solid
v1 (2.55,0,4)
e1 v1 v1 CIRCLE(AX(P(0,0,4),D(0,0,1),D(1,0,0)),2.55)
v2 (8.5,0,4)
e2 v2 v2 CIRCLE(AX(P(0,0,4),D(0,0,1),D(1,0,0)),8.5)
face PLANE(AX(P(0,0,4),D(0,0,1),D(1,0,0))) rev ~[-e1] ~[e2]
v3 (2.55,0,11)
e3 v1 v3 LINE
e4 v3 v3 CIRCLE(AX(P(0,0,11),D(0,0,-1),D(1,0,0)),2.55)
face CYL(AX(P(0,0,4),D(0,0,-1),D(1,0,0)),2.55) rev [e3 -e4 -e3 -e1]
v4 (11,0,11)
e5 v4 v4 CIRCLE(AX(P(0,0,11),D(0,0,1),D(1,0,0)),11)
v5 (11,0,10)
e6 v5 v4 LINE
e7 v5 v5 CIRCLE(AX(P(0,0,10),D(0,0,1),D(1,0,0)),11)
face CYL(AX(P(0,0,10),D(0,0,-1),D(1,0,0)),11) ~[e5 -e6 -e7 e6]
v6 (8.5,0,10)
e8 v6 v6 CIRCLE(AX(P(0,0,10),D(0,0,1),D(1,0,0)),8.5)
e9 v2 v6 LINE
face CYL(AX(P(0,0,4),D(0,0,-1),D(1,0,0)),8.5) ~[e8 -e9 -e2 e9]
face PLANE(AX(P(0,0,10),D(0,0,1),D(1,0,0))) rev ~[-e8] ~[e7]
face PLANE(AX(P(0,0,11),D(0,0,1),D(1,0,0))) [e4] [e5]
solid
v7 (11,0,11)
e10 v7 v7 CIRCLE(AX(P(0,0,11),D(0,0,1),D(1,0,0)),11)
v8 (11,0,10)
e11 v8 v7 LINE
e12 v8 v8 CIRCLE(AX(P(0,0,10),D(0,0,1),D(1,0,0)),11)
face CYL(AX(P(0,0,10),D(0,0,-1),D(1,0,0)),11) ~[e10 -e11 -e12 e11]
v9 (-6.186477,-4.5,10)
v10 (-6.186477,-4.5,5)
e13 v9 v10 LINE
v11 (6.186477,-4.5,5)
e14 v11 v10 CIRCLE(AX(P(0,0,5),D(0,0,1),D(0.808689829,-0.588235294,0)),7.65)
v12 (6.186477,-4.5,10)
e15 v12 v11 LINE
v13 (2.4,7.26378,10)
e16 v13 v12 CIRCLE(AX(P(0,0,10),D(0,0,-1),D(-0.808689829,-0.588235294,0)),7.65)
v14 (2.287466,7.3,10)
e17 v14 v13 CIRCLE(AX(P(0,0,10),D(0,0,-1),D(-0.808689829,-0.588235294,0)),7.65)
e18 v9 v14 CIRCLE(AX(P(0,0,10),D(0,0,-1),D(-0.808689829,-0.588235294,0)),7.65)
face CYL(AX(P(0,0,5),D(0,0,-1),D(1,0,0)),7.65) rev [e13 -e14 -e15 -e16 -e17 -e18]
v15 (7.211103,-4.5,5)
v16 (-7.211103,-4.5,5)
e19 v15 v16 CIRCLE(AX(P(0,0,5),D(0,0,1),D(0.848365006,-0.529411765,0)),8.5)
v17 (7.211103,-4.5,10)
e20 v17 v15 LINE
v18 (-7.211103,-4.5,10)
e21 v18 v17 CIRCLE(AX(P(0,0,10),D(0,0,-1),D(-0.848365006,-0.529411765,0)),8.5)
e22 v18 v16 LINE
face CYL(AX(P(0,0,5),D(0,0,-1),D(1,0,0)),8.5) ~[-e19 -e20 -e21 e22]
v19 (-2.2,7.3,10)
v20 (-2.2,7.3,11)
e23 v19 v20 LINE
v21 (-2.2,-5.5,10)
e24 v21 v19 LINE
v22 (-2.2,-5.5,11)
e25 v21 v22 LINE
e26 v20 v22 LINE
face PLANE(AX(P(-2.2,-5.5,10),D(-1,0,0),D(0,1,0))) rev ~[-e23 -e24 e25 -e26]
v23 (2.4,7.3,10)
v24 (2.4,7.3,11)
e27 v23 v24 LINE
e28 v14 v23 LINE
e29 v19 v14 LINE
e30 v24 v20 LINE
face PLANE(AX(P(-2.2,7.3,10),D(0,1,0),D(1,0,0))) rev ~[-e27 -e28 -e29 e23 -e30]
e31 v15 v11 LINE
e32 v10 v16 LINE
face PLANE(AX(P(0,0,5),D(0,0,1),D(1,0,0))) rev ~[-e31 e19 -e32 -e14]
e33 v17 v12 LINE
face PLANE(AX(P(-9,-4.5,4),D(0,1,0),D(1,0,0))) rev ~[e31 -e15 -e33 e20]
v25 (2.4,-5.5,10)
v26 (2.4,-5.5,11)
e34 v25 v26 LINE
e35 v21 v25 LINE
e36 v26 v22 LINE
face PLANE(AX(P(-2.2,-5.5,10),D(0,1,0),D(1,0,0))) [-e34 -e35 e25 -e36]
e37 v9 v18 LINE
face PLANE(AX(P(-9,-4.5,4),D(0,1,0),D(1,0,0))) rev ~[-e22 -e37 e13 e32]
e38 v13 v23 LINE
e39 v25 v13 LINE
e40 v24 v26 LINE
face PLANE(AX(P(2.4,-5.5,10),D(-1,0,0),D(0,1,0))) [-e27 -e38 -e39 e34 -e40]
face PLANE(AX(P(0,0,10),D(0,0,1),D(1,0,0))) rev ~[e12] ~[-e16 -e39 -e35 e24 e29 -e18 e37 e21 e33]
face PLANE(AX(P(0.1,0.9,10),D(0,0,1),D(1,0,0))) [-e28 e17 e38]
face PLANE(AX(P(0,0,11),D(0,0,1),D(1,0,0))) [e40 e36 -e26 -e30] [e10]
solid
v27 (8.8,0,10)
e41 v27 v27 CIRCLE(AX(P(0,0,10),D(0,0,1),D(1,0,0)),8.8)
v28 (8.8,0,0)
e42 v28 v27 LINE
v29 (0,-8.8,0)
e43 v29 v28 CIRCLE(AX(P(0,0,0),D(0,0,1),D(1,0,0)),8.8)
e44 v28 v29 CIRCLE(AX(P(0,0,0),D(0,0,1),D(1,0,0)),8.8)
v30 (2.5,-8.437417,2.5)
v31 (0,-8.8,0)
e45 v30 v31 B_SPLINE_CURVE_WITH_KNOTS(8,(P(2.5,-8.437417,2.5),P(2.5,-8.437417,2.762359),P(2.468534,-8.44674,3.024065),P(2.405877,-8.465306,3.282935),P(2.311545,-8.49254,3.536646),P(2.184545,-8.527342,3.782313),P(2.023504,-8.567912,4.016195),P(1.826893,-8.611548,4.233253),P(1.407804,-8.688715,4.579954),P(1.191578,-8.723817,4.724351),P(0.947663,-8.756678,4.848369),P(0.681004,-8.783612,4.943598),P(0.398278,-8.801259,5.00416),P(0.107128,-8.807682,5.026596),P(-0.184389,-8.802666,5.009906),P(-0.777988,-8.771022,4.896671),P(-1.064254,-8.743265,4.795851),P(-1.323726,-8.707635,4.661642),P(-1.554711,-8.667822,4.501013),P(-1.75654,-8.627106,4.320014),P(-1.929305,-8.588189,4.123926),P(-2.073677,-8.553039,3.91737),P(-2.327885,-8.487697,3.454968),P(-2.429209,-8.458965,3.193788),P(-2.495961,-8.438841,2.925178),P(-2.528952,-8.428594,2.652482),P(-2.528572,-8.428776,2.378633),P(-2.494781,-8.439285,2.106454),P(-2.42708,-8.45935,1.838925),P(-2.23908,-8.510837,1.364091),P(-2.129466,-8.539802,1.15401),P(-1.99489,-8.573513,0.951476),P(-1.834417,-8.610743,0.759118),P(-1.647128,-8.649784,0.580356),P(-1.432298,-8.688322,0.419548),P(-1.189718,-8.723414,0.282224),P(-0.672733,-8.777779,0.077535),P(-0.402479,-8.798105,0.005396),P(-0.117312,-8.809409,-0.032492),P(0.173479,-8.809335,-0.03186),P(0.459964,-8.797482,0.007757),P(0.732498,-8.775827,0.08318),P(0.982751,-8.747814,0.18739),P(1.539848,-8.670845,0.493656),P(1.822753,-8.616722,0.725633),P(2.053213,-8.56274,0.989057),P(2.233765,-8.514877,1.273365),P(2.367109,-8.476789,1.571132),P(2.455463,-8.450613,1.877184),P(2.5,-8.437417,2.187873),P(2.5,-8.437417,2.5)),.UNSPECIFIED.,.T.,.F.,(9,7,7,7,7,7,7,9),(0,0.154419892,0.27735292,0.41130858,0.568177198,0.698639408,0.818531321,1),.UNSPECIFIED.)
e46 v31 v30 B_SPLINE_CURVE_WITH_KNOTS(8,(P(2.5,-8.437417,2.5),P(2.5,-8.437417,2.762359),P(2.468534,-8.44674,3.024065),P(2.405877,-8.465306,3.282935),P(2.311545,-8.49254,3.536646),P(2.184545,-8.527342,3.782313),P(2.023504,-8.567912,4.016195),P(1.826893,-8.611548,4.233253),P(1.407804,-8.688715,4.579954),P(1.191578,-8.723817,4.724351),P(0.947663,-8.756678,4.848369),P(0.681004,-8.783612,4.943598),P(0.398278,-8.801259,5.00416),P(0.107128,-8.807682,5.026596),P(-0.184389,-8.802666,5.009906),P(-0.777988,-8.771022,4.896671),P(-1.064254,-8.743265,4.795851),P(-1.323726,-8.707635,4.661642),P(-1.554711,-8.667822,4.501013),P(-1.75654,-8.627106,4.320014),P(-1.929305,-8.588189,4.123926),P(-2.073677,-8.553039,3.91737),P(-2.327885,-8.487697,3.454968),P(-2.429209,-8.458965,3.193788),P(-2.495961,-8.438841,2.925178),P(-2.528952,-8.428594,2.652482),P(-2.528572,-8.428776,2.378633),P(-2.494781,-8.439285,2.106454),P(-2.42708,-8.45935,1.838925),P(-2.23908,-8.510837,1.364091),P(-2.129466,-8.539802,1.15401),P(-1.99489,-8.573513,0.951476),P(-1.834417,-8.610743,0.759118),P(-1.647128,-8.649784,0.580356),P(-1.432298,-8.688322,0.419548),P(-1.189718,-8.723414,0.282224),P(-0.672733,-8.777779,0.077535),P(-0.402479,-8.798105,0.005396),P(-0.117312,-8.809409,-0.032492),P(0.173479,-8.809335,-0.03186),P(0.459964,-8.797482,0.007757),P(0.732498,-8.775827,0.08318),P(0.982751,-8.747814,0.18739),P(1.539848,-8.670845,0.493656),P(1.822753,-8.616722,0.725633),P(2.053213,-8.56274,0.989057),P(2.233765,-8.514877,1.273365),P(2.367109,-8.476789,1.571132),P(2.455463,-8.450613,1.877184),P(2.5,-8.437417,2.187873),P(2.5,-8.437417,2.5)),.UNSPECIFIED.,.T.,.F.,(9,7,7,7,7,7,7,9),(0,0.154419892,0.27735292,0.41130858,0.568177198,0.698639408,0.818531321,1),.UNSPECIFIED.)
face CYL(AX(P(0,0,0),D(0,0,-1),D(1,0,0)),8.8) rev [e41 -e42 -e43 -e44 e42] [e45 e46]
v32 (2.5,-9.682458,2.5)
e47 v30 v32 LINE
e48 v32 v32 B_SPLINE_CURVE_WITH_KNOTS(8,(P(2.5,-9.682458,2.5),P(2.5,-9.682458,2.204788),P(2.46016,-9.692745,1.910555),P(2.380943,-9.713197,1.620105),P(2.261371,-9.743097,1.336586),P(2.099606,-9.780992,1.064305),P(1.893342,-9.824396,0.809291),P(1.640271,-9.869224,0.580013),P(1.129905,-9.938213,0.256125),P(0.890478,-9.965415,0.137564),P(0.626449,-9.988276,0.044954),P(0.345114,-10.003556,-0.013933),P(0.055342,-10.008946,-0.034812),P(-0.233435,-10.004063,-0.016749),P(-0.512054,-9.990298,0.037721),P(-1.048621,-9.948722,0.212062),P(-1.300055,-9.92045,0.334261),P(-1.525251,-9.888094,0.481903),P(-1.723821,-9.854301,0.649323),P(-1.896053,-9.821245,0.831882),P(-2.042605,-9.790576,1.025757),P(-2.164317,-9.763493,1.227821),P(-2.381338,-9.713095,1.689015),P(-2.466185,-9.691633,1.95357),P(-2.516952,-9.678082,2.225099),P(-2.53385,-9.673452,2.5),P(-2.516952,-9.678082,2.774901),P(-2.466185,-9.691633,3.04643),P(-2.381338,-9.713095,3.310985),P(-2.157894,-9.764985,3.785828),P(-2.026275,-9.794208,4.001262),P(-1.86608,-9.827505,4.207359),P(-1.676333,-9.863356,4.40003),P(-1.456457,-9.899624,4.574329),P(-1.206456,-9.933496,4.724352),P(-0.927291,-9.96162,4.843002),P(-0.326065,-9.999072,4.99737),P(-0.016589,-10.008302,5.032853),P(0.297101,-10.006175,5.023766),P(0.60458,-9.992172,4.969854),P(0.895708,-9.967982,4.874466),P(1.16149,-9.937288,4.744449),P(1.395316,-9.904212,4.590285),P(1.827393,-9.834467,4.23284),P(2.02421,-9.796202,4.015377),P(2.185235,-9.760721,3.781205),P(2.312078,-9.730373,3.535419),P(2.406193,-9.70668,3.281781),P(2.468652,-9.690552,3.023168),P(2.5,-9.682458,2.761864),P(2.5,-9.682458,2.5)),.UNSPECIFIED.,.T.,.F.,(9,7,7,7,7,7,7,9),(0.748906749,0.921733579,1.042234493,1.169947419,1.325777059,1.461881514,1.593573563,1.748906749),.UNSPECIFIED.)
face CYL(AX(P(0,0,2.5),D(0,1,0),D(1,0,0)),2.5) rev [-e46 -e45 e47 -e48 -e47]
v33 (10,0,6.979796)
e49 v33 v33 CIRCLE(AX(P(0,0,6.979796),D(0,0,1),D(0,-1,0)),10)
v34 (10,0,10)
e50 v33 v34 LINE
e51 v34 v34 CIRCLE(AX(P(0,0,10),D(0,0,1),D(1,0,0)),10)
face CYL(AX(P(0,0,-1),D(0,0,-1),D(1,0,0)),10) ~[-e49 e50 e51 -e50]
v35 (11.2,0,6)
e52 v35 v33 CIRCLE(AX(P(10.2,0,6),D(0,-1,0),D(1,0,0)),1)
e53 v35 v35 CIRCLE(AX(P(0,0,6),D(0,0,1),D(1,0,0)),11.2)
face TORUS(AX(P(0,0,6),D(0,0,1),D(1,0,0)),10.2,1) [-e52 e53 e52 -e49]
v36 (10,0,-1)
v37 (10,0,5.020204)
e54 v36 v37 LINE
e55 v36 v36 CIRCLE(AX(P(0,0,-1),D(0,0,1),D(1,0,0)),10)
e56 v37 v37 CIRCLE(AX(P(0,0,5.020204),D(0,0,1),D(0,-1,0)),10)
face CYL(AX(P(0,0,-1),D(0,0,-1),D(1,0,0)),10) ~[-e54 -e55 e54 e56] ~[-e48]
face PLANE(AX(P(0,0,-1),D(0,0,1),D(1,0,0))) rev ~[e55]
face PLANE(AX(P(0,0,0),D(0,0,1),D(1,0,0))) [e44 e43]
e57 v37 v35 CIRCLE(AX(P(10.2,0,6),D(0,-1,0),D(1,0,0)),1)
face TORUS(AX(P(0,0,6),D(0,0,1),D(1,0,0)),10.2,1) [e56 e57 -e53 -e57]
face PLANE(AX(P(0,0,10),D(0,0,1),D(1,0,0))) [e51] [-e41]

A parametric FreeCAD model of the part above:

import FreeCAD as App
import Part
import Sketcher
Q = App.Units.Quantity

doc = App.newDocument("Part")
body = doc.addObject("PartDesign::Body", "Body")

# Sketch on XZ plane
sketch1 = body.newObject("Sketcher::SketchObject", "Sketch")
sketch1.AttachmentSupport = (doc.getObject("XZ_Plane"), [""])
sketch1.MapMode = "FlatFace"
sketch1.addGeometry(Part.Circle(App.Vector(10.2, 6, 0), App.Vector(0, 0, 1), 1), False)
sketch1.addConstraint([
    Sketcher.Constraint("Diameter", 0, Q("2 mm")),
    Sketcher.Constraint("DistanceY", -1, 1, 0, 3, Q("6 mm")),
    Sketcher.Constraint("DistanceX", -1, 1, 0, 3, Q("10.2 mm")),
])
revolution = body.newObject("PartDesign::Revolution", "Revolution")
revolution.Profile = sketch1
revolution.ReferenceAxis = (sketch1, ["V_Axis"])
revolution.Angle = 360
body2 = doc.addObject("PartDesign::Body", "Body001")

# Sketch on XY plane
sketch2 = body2.newObject("Sketcher::SketchObject", "Sketch001")
sketch2.AttachmentSupport = (doc.getObject("XY_Plane001"), [""])
sketch2.MapMode = "FlatFace"
sketch2.addGeometry(Part.Circle(App.Vector(0, 0, 0), App.Vector(0, 0, 1), 2.5), False)
sketch2.addConstraint([
    Sketcher.Constraint("Coincident", 0, 3, -1, 1),
    Sketcher.Constraint("Diameter", 0, Q("5 mm")),
])
pad1 = body2.newObject("PartDesign::Pad", "Pad")
pad1.Profile = sketch2
pad1.Length = 10
body3 = doc.addObject("PartDesign::Body", "Body002")
doc.recompute()

body2.Placement = App.Placement(App.Vector(0, 0, 0), App.Rotation(App.Vector(1, 0, 0), 90))
boolean = body3.newObject("PartDesign::Boolean", "Boolean")
boolean.Type = "Fuse"
boolean.addObjects([body2])
body4 = doc.addObject("PartDesign::Body", "Body003")
doc.recompute()

body3.Placement = App.Placement(App.Vector(0, 0, 2.5), App.Rotation(App.Vector(0, 0, 1), 0))
boolean2 = body4.newObject("PartDesign::Boolean", "Boolean001")
boolean2.Type = "Fuse"
boolean2.addObjects([body3])
body5 = doc.addObject("PartDesign::Body", "Body004")

# Sketch on XY plane
sketch3 = body5.newObject("Sketcher::SketchObject", "Sketch002")
sketch3.AttachmentSupport = (doc.getObject("XY_Plane004"), [""])
sketch3.MapMode = "FlatFace"
sketch3.addGeometry(Part.Circle(App.Vector(0, 0, 0), App.Vector(0, 0, 1), 9), False)
sketch3.addConstraint([
    Sketcher.Constraint("Coincident", 0, 3, -1, 1),
    Sketcher.Constraint("Diameter", 0, Q("17.6 mm")),
])
pad2 = body5.newObject("PartDesign::Pad", "Pad001")
pad2.Profile = sketch3
pad2.Length = 10
doc.recompute()

boolean3 = body5.newObject("PartDesign::Boolean", "Boolean002")
boolean3.Type = "Fuse"
boolean3.addObjects([body4])
body6 = doc.addObject("PartDesign::Body", "Body005")

# Sketch on XY plane
sketch4 = body6.newObject("Sketcher::SketchObject", "Sketch003")
sketch4.AttachmentSupport = (doc.getObject("XY_Plane005"), [""])
sketch4.MapMode = "FlatFace"
sketch4.AttachmentOffset = App.Placement(App.Vector(0, 0, -1), App.Rotation())
sketch4.addGeometry(Part.Circle(App.Vector(0, 0, 0), App.Vector(0, 0, 1), 10), False)
sketch4.addConstraint([
    Sketcher.Constraint("Coincident", 0, 3, -1, 1),
    Sketcher.Constraint("Diameter", 0, Q("20 mm")),
])
pad3 = body6.newObject("PartDesign::Pad", "Pad002")
pad3.Profile = sketch4
pad3.Length = 11
doc.recompute()

boolean4 = body6.newObject("PartDesign::Boolean", "Boolean003")
boolean4.Type = "Cut"
boolean4.addObjects([body5])
doc.recompute()

boolean5 = body6.newObject("PartDesign::Boolean", "Boolean004")
boolean5.Type = "Fuse"
boolean5.addObjects([body])
body7 = doc.addObject("PartDesign::Body", "Body006")

# Sketch on XY plane
sketch5 = body7.newObject("Sketcher::SketchObject", "Sketch004")
sketch5.AttachmentSupport = (doc.getObject("XY_Plane006"), [""])
sketch5.MapMode = "FlatFace"
sketch5.AttachmentOffset = App.Placement(App.Vector(0, 0, 4), App.Rotation())
sketch5.addGeometry(Part.Circle(App.Vector(0, 0, 0), App.Vector(0, 0, 1), 2.5), False)
sketch5.addConstraint([
    Sketcher.Constraint("Coincident", 0, 3, -1, 1),
    Sketcher.Constraint("Diameter", 0, Q("5.1 mm")),
])
pad4 = body7.newObject("PartDesign::Pad", "Pad003")
pad4.Profile = sketch5
pad4.Length = 12
body8 = doc.addObject("PartDesign::Body", "Body007")

# Sketch on XY plane
sketch6 = body8.newObject("Sketcher::SketchObject", "Sketch005")
sketch6.AttachmentSupport = (doc.getObject("XY_Plane007"), [""])
sketch6.MapMode = "FlatFace"
sketch6.AttachmentOffset = App.Placement(App.Vector(0, 0, 10), App.Rotation())
sketch6.addGeometry(Part.Circle(App.Vector(0, 0, 0), App.Vector(0, 0, 1), 11), False)
sketch6.addConstraint([
    Sketcher.Constraint("Coincident", 0, 3, -1, 1),
    Sketcher.Constraint("Diameter", 0, Q("22 mm")),
])
pad5 = body8.newObject("PartDesign::Pad", "Pad004")
pad5.Profile = sketch6
pad5.Length = 1
body9 = doc.addObject("PartDesign::Body", "Body008")

# Sketch on XY plane
sketch7 = body9.newObject("Sketcher::SketchObject", "Sketch006")
sketch7.AttachmentSupport = (doc.getObject("XY_Plane008"), [""])
sketch7.MapMode = "FlatFace"
sketch7.AttachmentOffset = App.Placement(App.Vector(0, 0, 4), App.Rotation())
sketch7.addGeometry(Part.Circle(App.Vector(0, 0, 0), App.Vector(0, 0, 1), 8), False)
sketch7.addConstraint([
    Sketcher.Constraint("Coincident", 0, 3, -1, 1),
    Sketcher.Constraint("Diameter", 0, Q("17 mm")),
])
pad6 = body9.newObject("PartDesign::Pad", "Pad005")
pad6.Profile = sketch7
pad6.Length = 6
doc.recompute()

boolean6 = body9.newObject("PartDesign::Boolean", "Boolean005")
boolean6.Type = "Fuse"
boolean6.addObjects([body8])
doc.recompute()

boolean7 = body9.newObject("PartDesign::Boolean", "Boolean006")
boolean7.Type = "Cut"
boolean7.addObjects([body7])
body10 = doc.addObject("PartDesign::Body", "Body009")

# Sketch on XY plane
sketch8 = body10.newObject("Sketcher::SketchObject", "Sketch007")
sketch8.AttachmentSupport = (doc.getObject("XY_Plane009"), [""])
sketch8.MapMode = "FlatFace"
sketch8.AttachmentOffset = App.Placement(App.Vector(0, 0, 10), App.Rotation())
sketch8.addGeometry([
    Part.LineSegment(App.Vector(-2.2, 7.3, 0), App.Vector(-2.2, -5.5, 0)),
    Part.LineSegment(App.Vector(-2.2, -5.5, 0), App.Vector(2.4, -5.5, 0)),
    Part.LineSegment(App.Vector(2.4, -5.5, 0), App.Vector(2.4, 7.3, 0)),
    Part.LineSegment(App.Vector(2.4, 7.3, 0), App.Vector(-2.2, 7.3, 0)),
], False)
sketch8.addConstraint([
    Sketcher.Constraint("Coincident", 0, 2, 1, 1),
    Sketcher.Constraint("Coincident", 1, 2, 2, 1),
    Sketcher.Constraint("Coincident", 2, 2, 3, 1),
    Sketcher.Constraint("Coincident", 3, 2, 0, 1),
    Sketcher.Constraint("Vertical", 0),
    Sketcher.Constraint("Horizontal", 1),
    Sketcher.Constraint("Vertical", 2),
    Sketcher.Constraint("Horizontal", 3),
    Sketcher.Constraint("DistanceX", 1, 1, 1, 2, Q("4.6 mm")),
    Sketcher.Constraint("DistanceY", 0, 2, 0, 1, Q("12.8 mm")),
    Sketcher.Constraint("DistanceX", 0, 2, -1, 1, Q("2.2 mm")),
    Sketcher.Constraint("DistanceY", 0, 2, -1, 1, Q("5.5 mm")),
])
pad7 = body10.newObject("PartDesign::Pad", "Pad006")
pad7.Profile = sketch8
pad7.Length = 3
body11 = doc.addObject("PartDesign::Body", "Body010")

# Sketch on XY plane
sketch9 = body11.newObject("Sketcher::SketchObject", "Sketch008")
sketch9.AttachmentSupport = (doc.getObject("XY_Plane010"), [""])
sketch9.MapMode = "FlatFace"
sketch9.AttachmentOffset = App.Placement(App.Vector(0, 0, 10), App.Rotation())
sketch9.addGeometry(Part.Circle(App.Vector(0, 0, 0), App.Vector(0, 0, 1), 11), False)
sketch9.addConstraint([
    Sketcher.Constraint("Coincident", 0, 3, -1, 1),
    Sketcher.Constraint("Diameter", 0, Q("22 mm")),
])
pad8 = body11.newObject("PartDesign::Pad", "Pad007")
pad8.Profile = sketch9
pad8.Length = 1
body12 = doc.addObject("PartDesign::Body", "Body011")

# Sketch on XY plane
sketch10 = body12.newObject("Sketcher::SketchObject", "Sketch009")
sketch10.AttachmentSupport = (doc.getObject("XY_Plane011"), [""])
sketch10.MapMode = "FlatFace"
sketch10.AttachmentOffset = App.Placement(App.Vector(0, 0, 4), App.Rotation())
sketch10.addGeometry([
    Part.LineSegment(App.Vector(-9, -4, 0), App.Vector(-9, -12, 0)),
    Part.LineSegment(App.Vector(-9, -12, 0), App.Vector(9, -12, 0)),
    Part.LineSegment(App.Vector(9, -12, 0), App.Vector(9, -4, 0)),
    Part.LineSegment(App.Vector(9, -4, 0), App.Vector(-9, -4, 0)),
], False)
sketch10.addConstraint([
    Sketcher.Constraint("Coincident", 0, 2, 1, 1),
    Sketcher.Constraint("Coincident", 1, 2, 2, 1),
    Sketcher.Constraint("Coincident", 2, 2, 3, 1),
    Sketcher.Constraint("Coincident", 3, 2, 0, 1),
    Sketcher.Constraint("Vertical", 0),
    Sketcher.Constraint("Horizontal", 1),
    Sketcher.Constraint("Vertical", 2),
    Sketcher.Constraint("Horizontal", 3),
    Sketcher.Constraint("DistanceX", 1, 1, 1, 2, Q("18 mm")),
    Sketcher.Constraint("DistanceY", 0, 2, 0, 1, Q("7 mm")),
    Sketcher.Constraint("DistanceX", 0, 2, -1, 1, Q("9 mm")),
    Sketcher.Constraint("DistanceY", 0, 2, -1, 1, Q("11.5 mm")),
])
pad9 = body12.newObject("PartDesign::Pad", "Pad008")
pad9.Profile = sketch10
pad9.Length = 7
body13 = doc.addObject("PartDesign::Body", "Body012")

# Sketch on XY plane
sketch11 = body13.newObject("Sketcher::SketchObject", "Sketch010")
sketch11.AttachmentSupport = (doc.getObject("XY_Plane012"), [""])
sketch11.MapMode = "FlatFace"
sketch11.AttachmentOffset = App.Placement(App.Vector(0, 0, 5), App.Rotation())
sketch11.addGeometry(Part.Circle(App.Vector(0, 0, 0), App.Vector(0, 0, 1), 8), False)
sketch11.addConstraint([
    Sketcher.Constraint("Coincident", 0, 3, -1, 1),
    Sketcher.Constraint("Diameter", 0, Q("15.3 mm")),
])
pad10 = body13.newObject("PartDesign::Pad", "Pad009")
pad10.Profile = sketch11
pad10.Length = 5
body14 = doc.addObject("PartDesign::Body", "Body013")

# Sketch on XY plane
sketch12 = body14.newObject("Sketcher::SketchObject", "Sketch011")
sketch12.AttachmentSupport = (doc.getObject("XY_Plane013"), [""])
sketch12.MapMode = "FlatFace"
sketch12.AttachmentOffset = App.Placement(App.Vector(0, 0, 5), App.Rotation())
sketch12.addGeometry(Part.Circle(App.Vector(0, 0, 0), App.Vector(0, 0, 1), 8), False)
sketch12.addConstraint([
    Sketcher.Constraint("Coincident", 0, 3, -1, 1),
    Sketcher.Constraint("Diameter", 0, Q("17 mm")),
])
pad11 = body14.newObject("PartDesign::Pad", "Pad010")
pad11.Profile = sketch12
pad11.Length = 5
doc.recompute()

boolean8 = body14.newObject("PartDesign::Boolean", "Boolean007")
boolean8.Type = "Cut"
boolean8.addObjects([body13])
doc.recompute()

boolean9 = body14.newObject("PartDesign::Boolean", "Boolean008")
boolean9.Type = "Cut"
boolean9.addObjects([body12])
doc.recompute()

boolean10 = body14.newObject("PartDesign::Boolean", "Boolean009")
boolean10.Type = "Fuse"
boolean10.addObjects([body11])
doc.recompute()

boolean11 = body14.newObject("PartDesign::Boolean", "Boolean010")
boolean11.Type = "Cut"
boolean11.addObjects([body10])

doc.recompute()
